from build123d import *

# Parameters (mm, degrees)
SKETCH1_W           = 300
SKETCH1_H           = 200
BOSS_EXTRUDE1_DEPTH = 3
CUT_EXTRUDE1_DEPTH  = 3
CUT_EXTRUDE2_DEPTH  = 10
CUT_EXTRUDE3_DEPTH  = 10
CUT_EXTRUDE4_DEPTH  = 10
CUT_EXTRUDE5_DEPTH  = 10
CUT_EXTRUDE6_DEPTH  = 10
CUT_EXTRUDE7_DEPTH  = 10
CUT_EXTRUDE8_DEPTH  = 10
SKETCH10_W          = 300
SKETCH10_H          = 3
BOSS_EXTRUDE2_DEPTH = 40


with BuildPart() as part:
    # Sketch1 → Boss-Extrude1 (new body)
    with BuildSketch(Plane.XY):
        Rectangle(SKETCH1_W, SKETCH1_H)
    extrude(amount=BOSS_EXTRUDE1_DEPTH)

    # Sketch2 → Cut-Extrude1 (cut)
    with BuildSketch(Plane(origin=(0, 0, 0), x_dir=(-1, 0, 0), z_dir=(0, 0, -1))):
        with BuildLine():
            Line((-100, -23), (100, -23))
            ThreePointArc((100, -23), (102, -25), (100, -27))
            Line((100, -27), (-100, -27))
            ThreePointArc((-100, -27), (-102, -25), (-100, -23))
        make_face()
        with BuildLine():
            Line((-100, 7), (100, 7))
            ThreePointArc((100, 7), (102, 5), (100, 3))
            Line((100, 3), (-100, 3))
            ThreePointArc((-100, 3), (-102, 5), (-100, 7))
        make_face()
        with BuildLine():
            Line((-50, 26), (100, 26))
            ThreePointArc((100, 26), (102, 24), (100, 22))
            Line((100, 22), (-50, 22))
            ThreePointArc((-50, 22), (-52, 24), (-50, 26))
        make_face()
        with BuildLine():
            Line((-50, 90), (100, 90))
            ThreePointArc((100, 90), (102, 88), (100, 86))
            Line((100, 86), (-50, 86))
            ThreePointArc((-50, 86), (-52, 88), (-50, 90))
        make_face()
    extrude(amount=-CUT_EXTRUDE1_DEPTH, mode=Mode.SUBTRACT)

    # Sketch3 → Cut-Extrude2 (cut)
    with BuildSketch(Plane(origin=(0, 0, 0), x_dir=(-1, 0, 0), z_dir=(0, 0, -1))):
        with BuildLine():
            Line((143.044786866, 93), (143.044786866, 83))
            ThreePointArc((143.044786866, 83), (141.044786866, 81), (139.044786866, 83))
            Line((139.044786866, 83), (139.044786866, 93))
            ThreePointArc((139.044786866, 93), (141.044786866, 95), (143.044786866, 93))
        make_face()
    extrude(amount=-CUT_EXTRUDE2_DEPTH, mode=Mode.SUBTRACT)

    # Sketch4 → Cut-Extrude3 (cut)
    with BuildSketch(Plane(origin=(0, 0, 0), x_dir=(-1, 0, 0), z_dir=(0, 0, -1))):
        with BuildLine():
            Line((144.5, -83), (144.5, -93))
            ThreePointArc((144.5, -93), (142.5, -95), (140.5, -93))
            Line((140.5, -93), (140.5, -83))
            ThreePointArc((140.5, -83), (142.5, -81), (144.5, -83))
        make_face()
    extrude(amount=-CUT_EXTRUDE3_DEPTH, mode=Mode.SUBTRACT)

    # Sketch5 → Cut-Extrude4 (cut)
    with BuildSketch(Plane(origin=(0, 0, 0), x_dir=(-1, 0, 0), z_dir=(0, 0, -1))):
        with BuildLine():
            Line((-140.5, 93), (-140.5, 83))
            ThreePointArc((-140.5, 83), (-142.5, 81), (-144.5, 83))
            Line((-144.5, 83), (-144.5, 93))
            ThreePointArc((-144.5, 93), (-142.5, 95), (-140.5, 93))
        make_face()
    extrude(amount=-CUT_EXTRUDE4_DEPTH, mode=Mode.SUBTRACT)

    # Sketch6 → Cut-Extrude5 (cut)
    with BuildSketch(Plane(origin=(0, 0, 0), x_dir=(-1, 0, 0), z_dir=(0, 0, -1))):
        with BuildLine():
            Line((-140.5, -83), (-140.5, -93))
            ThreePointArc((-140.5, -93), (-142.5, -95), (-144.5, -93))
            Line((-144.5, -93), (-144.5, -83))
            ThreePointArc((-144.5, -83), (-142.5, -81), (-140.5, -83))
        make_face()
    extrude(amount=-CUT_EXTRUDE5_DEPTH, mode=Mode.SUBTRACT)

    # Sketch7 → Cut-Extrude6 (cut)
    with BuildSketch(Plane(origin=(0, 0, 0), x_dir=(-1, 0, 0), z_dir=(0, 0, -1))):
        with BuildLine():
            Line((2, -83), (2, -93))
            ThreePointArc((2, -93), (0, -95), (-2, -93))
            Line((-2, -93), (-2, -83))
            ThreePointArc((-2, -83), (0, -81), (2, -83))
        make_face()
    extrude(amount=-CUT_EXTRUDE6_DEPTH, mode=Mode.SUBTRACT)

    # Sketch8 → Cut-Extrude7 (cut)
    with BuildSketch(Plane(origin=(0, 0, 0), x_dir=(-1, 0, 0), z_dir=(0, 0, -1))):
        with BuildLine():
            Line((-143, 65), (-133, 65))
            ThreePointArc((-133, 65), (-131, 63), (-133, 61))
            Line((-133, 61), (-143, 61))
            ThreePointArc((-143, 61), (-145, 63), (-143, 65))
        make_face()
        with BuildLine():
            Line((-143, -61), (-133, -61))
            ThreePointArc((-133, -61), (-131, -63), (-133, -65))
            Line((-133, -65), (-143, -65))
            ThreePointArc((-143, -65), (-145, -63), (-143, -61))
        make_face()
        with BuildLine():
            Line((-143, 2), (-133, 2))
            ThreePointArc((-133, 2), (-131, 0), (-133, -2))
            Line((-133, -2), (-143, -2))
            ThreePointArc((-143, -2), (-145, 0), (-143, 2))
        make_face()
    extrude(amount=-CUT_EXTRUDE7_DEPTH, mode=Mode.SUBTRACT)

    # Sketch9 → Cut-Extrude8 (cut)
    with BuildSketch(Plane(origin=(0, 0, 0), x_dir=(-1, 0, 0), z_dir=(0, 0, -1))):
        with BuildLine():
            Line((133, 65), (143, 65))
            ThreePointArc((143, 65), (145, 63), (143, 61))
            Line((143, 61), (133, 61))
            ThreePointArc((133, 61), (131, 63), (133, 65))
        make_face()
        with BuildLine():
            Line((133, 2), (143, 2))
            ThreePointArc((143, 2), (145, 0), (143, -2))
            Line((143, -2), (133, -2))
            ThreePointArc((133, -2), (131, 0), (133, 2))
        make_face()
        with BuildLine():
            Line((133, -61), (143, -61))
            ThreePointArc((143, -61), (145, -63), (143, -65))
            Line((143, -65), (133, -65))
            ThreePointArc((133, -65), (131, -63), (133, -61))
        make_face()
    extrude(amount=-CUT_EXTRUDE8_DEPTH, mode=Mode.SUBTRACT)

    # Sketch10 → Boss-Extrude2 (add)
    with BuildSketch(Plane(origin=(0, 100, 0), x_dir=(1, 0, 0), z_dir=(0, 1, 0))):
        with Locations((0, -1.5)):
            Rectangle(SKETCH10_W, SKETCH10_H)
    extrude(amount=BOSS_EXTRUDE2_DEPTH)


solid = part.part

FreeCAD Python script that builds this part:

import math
import FreeCAD as App
import Part
import Sketcher


def add_polygon(sketch, points):
    """Adds a closed chain of lines whose ends are joined by coincident constraints."""
    first, n = sketch.GeometryCount, len(points)
    for a, b in zip(points, points[1:] + points[:1]):
        sketch.addGeometry(Part.LineSegment(App.Vector(*a, 0), App.Vector(*b, 0)), False)
    for i in range(n):
        sketch.addConstraint(Sketcher.Constraint("Coincident", first + i, 2, first + (i + 1) % n, 1))

doc = App.newDocument("Part")
params = doc.addObject("Spreadsheet::Sheet", "Params")
for row, (alias, value) in enumerate([
    ("sketch1_width", "300 mm"),
    ("sketch1_height", "200 mm"),
    ("pad1_length", "3 mm"),
    ("sketch2_radius", "2 mm"),
    ("sketch2_width", "200 mm"),
    ("sketch2_width2", "150 mm"),
    ("pocket1_length", "3 mm"),
    ("sketch3_radius", "2 mm"),
    ("sketch3_height", "10 mm"),
    ("pocket2_length", "10 mm"),
    ("sketch4_radius", "2 mm"),
    ("sketch4_height", "10 mm"),
    ("pocket3_length", "10 mm"),
    ("sketch5_radius", "2 mm"),
    ("sketch5_height", "10 mm"),
    ("pocket4_length", "10 mm"),
    ("sketch6_radius", "2 mm"),
    ("sketch6_height", "10 mm"),
    ("pocket5_length", "10 mm"),
    ("sketch7_radius", "2 mm"),
    ("sketch7_height", "10 mm"),
    ("pocket6_length", "10 mm"),
    ("sketch8_radius", "2 mm"),
    ("sketch8_width", "10 mm"),
    ("pocket7_length", "10 mm"),
    ("sketch9_radius", "2 mm"),
    ("sketch9_width", "10 mm"),
    ("pocket8_length", "10 mm"),
    ("sketch10_width", "300 mm"),
    ("sketch10_height", "3 mm"),
    ("pad2_length", "40 mm"),
], start=1):
    params.set(f"A{row}", alias)
    params.set(f"B{row}", "=" + value)
    params.setAlias(f"B{row}", alias)

body = doc.addObject("PartDesign::Body", "Body")

sketch1 = body.newObject("Sketcher::SketchObject", "Sketch")
sketch1.AttachmentSupport = (doc.getObject("XY_Plane"), [""])
sketch1.MapMode = "FlatFace"
add_polygon(sketch1, [(-150, 100), (-150, -100), (150, -100), (150, 100)])
sketch1.addConstraint([
    Sketcher.Constraint("Vertical", 0),
    Sketcher.Constraint("Horizontal", 1),
    Sketcher.Constraint("Vertical", 2),
    Sketcher.Constraint("Horizontal", 3),
    Sketcher.Constraint("Symmetric", 0, 2, 2, 2, -1, 1),
    Sketcher.Constraint("DistanceX", 1, 1, 1, 2, 300.0),
    Sketcher.Constraint("DistanceY", 0, 2, 0, 1, 200.0),
])
sketch1.setExpression("Constraints[9]", "Params.sketch1_width")
sketch1.setExpression("Constraints[10]", "Params.sketch1_height")
pad1 = body.newObject("PartDesign::Pad", "Pad")
pad1.Profile = sketch1
pad1.setExpression("Length", "Params.pad1_length")

sketch2 = body.newObject("Sketcher::SketchObject", "Sketch001")
sketch2.AttachmentSupport = (doc.getObject("XY_Plane"), [""])
sketch2.MapMode = "FlatFace"
sketch2.addGeometry([
    Part.LineSegment(App.Vector(-100, -23, 0), App.Vector(100, -23, 0)),
    Part.ArcOfCircle(Part.Circle(App.Vector(100, -25, 0), App.Vector(0, 0, 1), 2), math.radians(-90), math.radians(90)),
    Part.LineSegment(App.Vector(100, -27, 0), App.Vector(-100, -27, 0)),
    Part.ArcOfCircle(Part.Circle(App.Vector(-100, -25, 0), App.Vector(0, 0, 1), 2), math.radians(90), math.radians(270)),
    Part.LineSegment(App.Vector(-100, 7, 0), App.Vector(100, 7, 0)),
    Part.ArcOfCircle(Part.Circle(App.Vector(100, 5, 0), App.Vector(0, 0, 1), 2), math.radians(-90), math.radians(90)),
    Part.LineSegment(App.Vector(100, 3, 0), App.Vector(-100, 3, 0)),
    Part.ArcOfCircle(Part.Circle(App.Vector(-100, 5, 0), App.Vector(0, 0, 1), 2), math.radians(90), math.radians(270)),
    Part.LineSegment(App.Vector(-100, 26, 0), App.Vector(50, 26, 0)),
    Part.ArcOfCircle(Part.Circle(App.Vector(50, 24, 0), App.Vector(0, 0, 1), 2), math.radians(-90), math.radians(90)),
    Part.LineSegment(App.Vector(50, 22, 0), App.Vector(-100, 22, 0)),
    Part.ArcOfCircle(Part.Circle(App.Vector(-100, 24, 0), App.Vector(0, 0, 1), 2), math.radians(90), math.radians(270)),
    Part.LineSegment(App.Vector(-100, 90, 0), App.Vector(50, 90, 0)),
    Part.ArcOfCircle(Part.Circle(App.Vector(50, 88, 0), App.Vector(0, 0, 1), 2), math.radians(-90), math.radians(90)),
    Part.LineSegment(App.Vector(50, 86, 0), App.Vector(-100, 86, 0)),
    Part.ArcOfCircle(Part.Circle(App.Vector(-100, 88, 0), App.Vector(0, 0, 1), 2), math.radians(90), math.radians(270)),
], False)
sketch2.addConstraint([
    Sketcher.Constraint("Tangent", 0, 2, 1, 2),
    Sketcher.Constraint("Tangent", 1, 1, 2, 1),
    Sketcher.Constraint("Tangent", 2, 2, 3, 2),
    Sketcher.Constraint("Tangent", 3, 1, 0, 1),
    Sketcher.Constraint("Tangent", 4, 2, 5, 2),
    Sketcher.Constraint("Tangent", 5, 1, 6, 1),
    Sketcher.Constraint("Tangent", 6, 2, 7, 2),
    Sketcher.Constraint("Tangent", 7, 1, 4, 1),
    Sketcher.Constraint("Tangent", 8, 2, 9, 2),
    Sketcher.Constraint("Tangent", 9, 1, 10, 1),
    Sketcher.Constraint("Tangent", 10, 2, 11, 2),
    Sketcher.Constraint("Tangent", 11, 1, 8, 1),
    Sketcher.Constraint("Tangent", 12, 2, 13, 2),
    Sketcher.Constraint("Tangent", 13, 1, 14, 1),
    Sketcher.Constraint("Tangent", 14, 2, 15, 2),
    Sketcher.Constraint("Tangent", 15, 1, 12, 1),
    Sketcher.Constraint("Horizontal", 0),
    Sketcher.Constraint("Horizontal", 2),
    Sketcher.Constraint("Horizontal", 4),
    Sketcher.Constraint("Horizontal", 6),
    Sketcher.Constraint("Horizontal", 8),
    Sketcher.Constraint("Horizontal", 10),
    Sketcher.Constraint("Horizontal", 12),
    Sketcher.Constraint("Horizontal", 14),
    Sketcher.Constraint("Equal", 3, 5),
    Sketcher.Constraint("Equal", 7, 9),
    Sketcher.Constraint("Equal", 11, 13),
    Sketcher.Constraint("Vertical", 1, 3, 5, 3),
    Sketcher.Constraint("Vertical", 3, 3, 7, 3),
    Sketcher.Constraint("Vertical", 7, 3, 11, 3),
    Sketcher.Constraint("Vertical", 9, 3, 13, 3),
    Sketcher.Constraint("Vertical", 11, 3, 15, 3),
    Sketcher.Constraint("Radius", 1, 2.0),
    Sketcher.Constraint("DistanceX", 0, 1, 0, 2, 200.0),
    Sketcher.Constraint("DistanceX", 8, 1, 8, 2, 150.0),
    Sketcher.Constraint("DistanceX", -1, 1, 1, 3, 100.0),
    Sketcher.Constraint("DistanceY", 1, 3, -1, 1, 25.0),
    Sketcher.Constraint("DistanceY", -1, 1, 5, 3, 5.0),
    Sketcher.Constraint("DistanceY", -1, 1, 9, 3, 24.0),
    Sketcher.Constraint("DistanceY", -1, 1, 13, 3, 88.0),
])
sketch2.setExpression("Constraints[32]", "Params.sketch2_radius")
sketch2.setExpression("Constraints[33]", "Params.sketch2_width")
sketch2.setExpression("Constraints[34]", "Params.sketch2_width2")
pocket1 = body.newObject("PartDesign::Pocket", "Pocket")
pocket1.Profile = sketch2
pocket1.setExpression("Length", "Params.pocket1_length")
pocket1.Reversed = True

sketch3 = body.newObject("Sketcher::SketchObject", "Sketch002")
sketch3.AttachmentSupport = (doc.getObject("XY_Plane"), [""])
sketch3.MapMode = "FlatFace"
sketch3.addGeometry([
    Part.LineSegment(App.Vector(-143, 83, 0), App.Vector(-143, 93, 0)),
    Part.ArcOfCircle(Part.Circle(App.Vector(-141, 93, 0), App.Vector(0, 0, 1), 2), math.radians(0), math.radians(180)),
    Part.LineSegment(App.Vector(-139, 93, 0), App.Vector(-139, 83, 0)),
    Part.ArcOfCircle(Part.Circle(App.Vector(-141, 83, 0), App.Vector(0, 0, 1), 2), math.radians(180), math.radians(360)),
], False)
sketch3.addConstraint([
    Sketcher.Constraint("Tangent", 0, 2, 1, 2),
    Sketcher.Constraint("Tangent", 1, 1, 2, 1),
    Sketcher.Constraint("Tangent", 2, 2, 3, 2),
    Sketcher.Constraint("Tangent", 3, 1, 0, 1),
    Sketcher.Constraint("Vertical", 0),
    Sketcher.Constraint("Vertical", 2),
    Sketcher.Constraint("Radius", 1, 2.0),
    Sketcher.Constraint("DistanceY", 0, 1, 0, 2, 10.0),
    Sketcher.Constraint("DistanceY", -1, 1, 1, 3, 93.0),
    Sketcher.Constraint("DistanceX", 1, 3, -1, 1, 141.044787),
])
sketch3.setExpression("Constraints[6]", "Params.sketch3_radius")
sketch3.setExpression("Constraints[7]", "Params.sketch3_height")
pocket2 = body.newObject("PartDesign::Pocket", "Pocket001")
pocket2.Profile = sketch3
pocket2.setExpression("Length", "Params.pocket2_length")
pocket2.Reversed = True

sketch4 = body.newObject("Sketcher::SketchObject", "Sketch003")
sketch4.AttachmentSupport = (doc.getObject("XY_Plane"), [""])
sketch4.MapMode = "FlatFace"
sketch4.addGeometry([
    Part.LineSegment(App.Vector(-144.5, -93, 0), App.Vector(-144.5, -83, 0)),
    Part.ArcOfCircle(Part.Circle(App.Vector(-142.5, -83, 0), App.Vector(0, 0, 1), 2), math.radians(0), math.radians(180)),
    Part.LineSegment(App.Vector(-140.5, -83, 0), App.Vector(-140.5, -93, 0)),
    Part.ArcOfCircle(Part.Circle(App.Vector(-142.5, -93, 0), App.Vector(0, 0, 1), 2), math.radians(180), math.radians(360)),
], False)
sketch4.addConstraint([
    Sketcher.Constraint("Tangent", 0, 2, 1, 2),
    Sketcher.Constraint("Tangent", 1, 1, 2, 1),
    Sketcher.Constraint("Tangent", 2, 2, 3, 2),
    Sketcher.Constraint("Tangent", 3, 1, 0, 1),
    Sketcher.Constraint("Vertical", 0),
    Sketcher.Constraint("Vertical", 2),
    Sketcher.Constraint("Radius", 1, 2.0),
    Sketcher.Constraint("DistanceY", 0, 1, 0, 2, 10.0),
    Sketcher.Constraint("DistanceY", 1, 3, -1, 1, 83.0),
    Sketcher.Constraint("DistanceX", 1, 3, -1, 1, 142.5),
])
sketch4.setExpression("Constraints[6]", "Params.sketch4_radius")
sketch4.setExpression("Constraints[7]", "Params.sketch4_height")
pocket3 = body.newObject("PartDesign::Pocket", "Pocket002")
pocket3.Profile = sketch4
pocket3.setExpression("Length", "Params.pocket3_length")
pocket3.Reversed = True

sketch5 = body.newObject("Sketcher::SketchObject", "Sketch004")
sketch5.AttachmentSupport = (doc.getObject("XY_Plane"), [""])
sketch5.MapMode = "FlatFace"
sketch5.addGeometry([
    Part.LineSegment(App.Vector(140.5, 83, 0), App.Vector(140.5, 93, 0)),
    Part.ArcOfCircle(Part.Circle(App.Vector(142.5, 93, 0), App.Vector(0, 0, 1), 2), math.radians(0), math.radians(180)),
    Part.LineSegment(App.Vector(144.5, 93, 0), App.Vector(144.5, 83, 0)),
    Part.ArcOfCircle(Part.Circle(App.Vector(142.5, 83, 0), App.Vector(0, 0, 1), 2), math.radians(180), math.radians(360)),
], False)
sketch5.addConstraint([
    Sketcher.Constraint("Tangent", 0, 2, 1, 2),
    Sketcher.Constraint("Tangent", 1, 1, 2, 1),
    Sketcher.Constraint("Tangent", 2, 2, 3, 2),
    Sketcher.Constraint("Tangent", 3, 1, 0, 1),
    Sketcher.Constraint("Vertical", 0),
    Sketcher.Constraint("Vertical", 2),
    Sketcher.Constraint("Radius", 1, 2.0),
    Sketcher.Constraint("DistanceY", 0, 1, 0, 2, 10.0),
    Sketcher.Constraint("DistanceY", -1, 1, 1, 3, 93.0),
    Sketcher.Constraint("DistanceX", -1, 1, 1, 3, 142.5),
])
sketch5.setExpression("Constraints[6]", "Params.sketch5_radius")
sketch5.setExpression("Constraints[7]", "Params.sketch5_height")
pocket4 = body.newObject("PartDesign::Pocket", "Pocket003")
pocket4.Profile = sketch5
pocket4.setExpression("Length", "Params.pocket4_length")
pocket4.Reversed = True

sketch6 = body.newObject("Sketcher::SketchObject", "Sketch005")
sketch6.AttachmentSupport = (doc.getObject("XY_Plane"), [""])
sketch6.MapMode = "FlatFace"
sketch6.addGeometry([
    Part.LineSegment(App.Vector(140.5, -93, 0), App.Vector(140.5, -83, 0)),
    Part.ArcOfCircle(Part.Circle(App.Vector(142.5, -83, 0), App.Vector(0, 0, 1), 2), math.radians(0), math.radians(180)),
    Part.LineSegment(App.Vector(144.5, -83, 0), App.Vector(144.5, -93, 0)),
    Part.ArcOfCircle(Part.Circle(App.Vector(142.5, -93, 0), App.Vector(0, 0, 1), 2), math.radians(180), math.radians(360)),
], False)
sketch6.addConstraint([
    Sketcher.Constraint("Tangent", 0, 2, 1, 2),
    Sketcher.Constraint("Tangent", 1, 1, 2, 1),
    Sketcher.Constraint("Tangent", 2, 2, 3, 2),
    Sketcher.Constraint("Tangent", 3, 1, 0, 1),
    Sketcher.Constraint("Vertical", 0),
    Sketcher.Constraint("Vertical", 2),
    Sketcher.Constraint("Radius", 1, 2.0),
    Sketcher.Constraint("DistanceY", 0, 1, 0, 2, 10.0),
    Sketcher.Constraint("DistanceY", 1, 3, -1, 1, 83.0),
    Sketcher.Constraint("DistanceX", -1, 1, 1, 3, 142.5),
])
sketch6.setExpression("Constraints[6]", "Params.sketch6_radius")
sketch6.setExpression("Constraints[7]", "Params.sketch6_height")
pocket5 = body.newObject("PartDesign::Pocket", "Pocket004")
pocket5.Profile = sketch6
pocket5.setExpression("Length", "Params.pocket5_length")
pocket5.Reversed = True

sketch7 = body.newObject("Sketcher::SketchObject", "Sketch006")
sketch7.AttachmentSupport = (doc.getObject("XY_Plane"), [""])
sketch7.MapMode = "FlatFace"
sketch7.addGeometry([
    Part.LineSegment(App.Vector(-2, -93, 0), App.Vector(-2, -83, 0)),
    Part.ArcOfCircle(Part.Circle(App.Vector(0, -83, 0), App.Vector(0, 0, 1), 2), math.radians(0), math.radians(180)),
    Part.LineSegment(App.Vector(2, -83, 0), App.Vector(2, -93, 0)),
    Part.ArcOfCircle(Part.Circle(App.Vector(0, -93, 0), App.Vector(0, 0, 1), 2), math.radians(180), math.radians(360)),
], False)
sketch7.addConstraint([
    Sketcher.Constraint("Tangent", 0, 2, 1, 2),
    Sketcher.Constraint("Tangent", 1, 1, 2, 1),
    Sketcher.Constraint("Tangent", 2, 2, 3, 2),
    Sketcher.Constraint("Tangent", 3, 1, 0, 1),
    Sketcher.Constraint("Vertical", 0),
    Sketcher.Constraint("Vertical", 2),
    Sketcher.Constraint("PointOnObject", 1, 3, -2),
    Sketcher.Constraint("Radius", 1, 2.0),
    Sketcher.Constraint("DistanceY", 0, 1, 0, 2, 10.0),
    Sketcher.Constraint("DistanceY", 1, 3, -1, 1, 83.0),
])
sketch7.setExpression("Constraints[7]", "Params.sketch7_radius")
sketch7.setExpression("Constraints[8]", "Params.sketch7_height")
pocket6 = body.newObject("PartDesign::Pocket", "Pocket005")
pocket6.Profile = sketch7
pocket6.setExpression("Length", "Params.pocket6_length")
pocket6.Reversed = True

sketch8 = body.newObject("Sketcher::SketchObject", "Sketch007")
sketch8.AttachmentSupport = (doc.getObject("XY_Plane"), [""])
sketch8.MapMode = "FlatFace"
sketch8.addGeometry([
    Part.LineSegment(App.Vector(133, 65, 0), App.Vector(143, 65, 0)),
    Part.ArcOfCircle(Part.Circle(App.Vector(143, 63, 0), App.Vector(0, 0, 1), 2), math.radians(-90), math.radians(90)),
    Part.LineSegment(App.Vector(143, 61, 0), App.Vector(133, 61, 0)),
    Part.ArcOfCircle(Part.Circle(App.Vector(133, 63, 0), App.Vector(0, 0, 1), 2), math.radians(90), math.radians(270)),
    Part.LineSegment(App.Vector(133, -61, 0), App.Vector(143, -61, 0)),
    Part.ArcOfCircle(Part.Circle(App.Vector(143, -63, 0), App.Vector(0, 0, 1), 2), math.radians(-90), math.radians(90)),
    Part.LineSegment(App.Vector(143, -65, 0), App.Vector(133, -65, 0)),
    Part.ArcOfCircle(Part.Circle(App.Vector(133, -63, 0), App.Vector(0, 0, 1), 2), math.radians(90), math.radians(270)),
    Part.LineSegment(App.Vector(133, 2, 0), App.Vector(143, 2, 0)),
    Part.ArcOfCircle(Part.Circle(App.Vector(143, 0, 0), App.Vector(0, 0, 1), 2), math.radians(-90), math.radians(90)),
    Part.LineSegment(App.Vector(143, -2, 0), App.Vector(133, -2, 0)),
    Part.ArcOfCircle(Part.Circle(App.Vector(133, 0, 0), App.Vector(0, 0, 1), 2), math.radians(90), math.radians(270)),
], False)
sketch8.addConstraint([
    Sketcher.Constraint("Tangent", 0, 2, 1, 2),
    Sketcher.Constraint("Tangent", 1, 1, 2, 1),
    Sketcher.Constraint("Tangent", 2, 2, 3, 2),
    Sketcher.Constraint("Tangent", 3, 1, 0, 1),
    Sketcher.Constraint("Tangent", 4, 2, 5, 2),
    Sketcher.Constraint("Tangent", 5, 1, 6, 1),
    Sketcher.Constraint("Tangent", 6, 2, 7, 2),
    Sketcher.Constraint("Tangent", 7, 1, 4, 1),
    Sketcher.Constraint("Tangent", 8, 2, 9, 2),
    Sketcher.Constraint("Tangent", 9, 1, 10, 1),
    Sketcher.Constraint("Tangent", 10, 2, 11, 2),
    Sketcher.Constraint("Tangent", 11, 1, 8, 1),
    Sketcher.Constraint("Horizontal", 0),
    Sketcher.Constraint("Horizontal", 2),
    Sketcher.Constraint("Horizontal", 4),
    Sketcher.Constraint("Horizontal", 6),
    Sketcher.Constraint("Horizontal", 8),
    Sketcher.Constraint("Horizontal", 10),
    Sketcher.Constraint("Equal", 3, 5),
    Sketcher.Constraint("Equal", 7, 9),
    Sketcher.Constraint("Symmetric", 1, 3, 5, 3, -1),
    Sketcher.Constraint("PointOnObject", 9, 3, -1),
    Sketcher.Constraint("Vertical", 3, 3, 7, 3),
    Sketcher.Constraint("Vertical", 5, 3, 9, 3),
    Sketcher.Constraint("Vertical", 7, 3, 11, 3),
    Sketcher.Constraint("Radius", 1, 2.0),
    Sketcher.Constraint("DistanceX", 0, 1, 0, 2, 10.0),
    Sketcher.Constraint("DistanceX", -1, 1, 1, 3, 143.0),
    Sketcher.Constraint("DistanceY", -1, 1, 1, 3, 63.0),
])
sketch8.setExpression("Constraints[25]", "Params.sketch8_radius")
sketch8.setExpression("Constraints[26]", "Params.sketch8_width")
pocket7 = body.newObject("PartDesign::Pocket", "Pocket006")
pocket7.Profile = sketch8
pocket7.setExpression("Length", "Params.pocket7_length")
pocket7.Reversed = True

sketch9 = body.newObject("Sketcher::SketchObject", "Sketch008")
sketch9.AttachmentSupport = (doc.getObject("XY_Plane"), [""])
sketch9.MapMode = "FlatFace"
sketch9.addGeometry([
    Part.LineSegment(App.Vector(-143, 65, 0), App.Vector(-133, 65, 0)),
    Part.ArcOfCircle(Part.Circle(App.Vector(-133, 63, 0), App.Vector(0, 0, 1), 2), math.radians(-90), math.radians(90)),
    Part.LineSegment(App.Vector(-133, 61, 0), App.Vector(-143, 61, 0)),
    Part.ArcOfCircle(Part.Circle(App.Vector(-143, 63, 0), App.Vector(0, 0, 1), 2), math.radians(90), math.radians(270)),
    Part.LineSegment(App.Vector(-143, 2, 0), App.Vector(-133, 2, 0)),
    Part.ArcOfCircle(Part.Circle(App.Vector(-133, 0, 0), App.Vector(0, 0, 1), 2), math.radians(-90), math.radians(90)),
    Part.LineSegment(App.Vector(-133, -2, 0), App.Vector(-143, -2, 0)),
    Part.ArcOfCircle(Part.Circle(App.Vector(-143, 0, 0), App.Vector(0, 0, 1), 2), math.radians(90), math.radians(270)),
    Part.LineSegment(App.Vector(-143, -61, 0), App.Vector(-133, -61, 0)),
    Part.ArcOfCircle(Part.Circle(App.Vector(-133, -63, 0), App.Vector(0, 0, 1), 2), math.radians(-90), math.radians(90)),
    Part.LineSegment(App.Vector(-133, -65, 0), App.Vector(-143, -65, 0)),
    Part.ArcOfCircle(Part.Circle(App.Vector(-143, -63, 0), App.Vector(0, 0, 1), 2), math.radians(90), math.radians(270)),
], False)
sketch9.addConstraint([
    Sketcher.Constraint("Tangent", 0, 2, 1, 2),
    Sketcher.Constraint("Tangent", 1, 1, 2, 1),
    Sketcher.Constraint("Tangent", 2, 2, 3, 2),
    Sketcher.Constraint("Tangent", 3, 1, 0, 1),
    Sketcher.Constraint("Tangent", 4, 2, 5, 2),
    Sketcher.Constraint("Tangent", 5, 1, 6, 1),
    Sketcher.Constraint("Tangent", 6, 2, 7, 2),
    Sketcher.Constraint("Tangent", 7, 1, 4, 1),
    Sketcher.Constraint("Tangent", 8, 2, 9, 2),
    Sketcher.Constraint("Tangent", 9, 1, 10, 1),
    Sketcher.Constraint("Tangent", 10, 2, 11, 2),
    Sketcher.Constraint("Tangent", 11, 1, 8, 1),
    Sketcher.Constraint("Horizontal", 0),
    Sketcher.Constraint("Horizontal", 2),
    Sketcher.Constraint("Horizontal", 4),
    Sketcher.Constraint("Horizontal", 6),
    Sketcher.Constraint("Horizontal", 8),
    Sketcher.Constraint("Horizontal", 10),
    Sketcher.Constraint("Equal", 3, 5),
    Sketcher.Constraint("Equal", 7, 9),
    Sketcher.Constraint("Symmetric", 1, 3, 9, 3, -1),
    Sketcher.Constraint("PointOnObject", 5, 3, -1),
    Sketcher.Constraint("Vertical", 1, 3, 5, 3),
    Sketcher.Constraint("Vertical", 3, 3, 7, 3),
    Sketcher.Constraint("Vertical", 7, 3, 11, 3),
    Sketcher.Constraint("Radius", 1, 2.0),
    Sketcher.Constraint("DistanceX", 0, 1, 0, 2, 10.0),
    Sketcher.Constraint("DistanceX", 1, 3, -1, 1, 133.0),
    Sketcher.Constraint("DistanceY", -1, 1, 1, 3, 63.0),
])
sketch9.setExpression("Constraints[25]", "Params.sketch9_radius")
sketch9.setExpression("Constraints[26]", "Params.sketch9_width")
pocket8 = body.newObject("PartDesign::Pocket", "Pocket007")
pocket8.Profile = sketch9
pocket8.setExpression("Length", "Params.pocket8_length")
pocket8.Reversed = True

sketch10 = body.newObject("Sketcher::SketchObject", "Sketch009")
sketch10.AttachmentSupport = (doc.getObject("XZ_Plane"), [""])
sketch10.MapMode = "FlatFace"
sketch10.AttachmentOffset = App.Placement(App.Vector(0, 0, -100), App.Rotation())
add_polygon(sketch10, [(-150, 0), (-150, 3), (150, 3), (150, 0)])
sketch10.addConstraint([
    Sketcher.Constraint("Vertical", 0),
    Sketcher.Constraint("Horizontal", 1),
    Sketcher.Constraint("Vertical", 2),
    Sketcher.Constraint("Horizontal", 3),
    Sketcher.Constraint("Symmetric", 2, 2, 3, 2, -1, 1),
    Sketcher.Constraint("DistanceX", 1, 1, 1, 2, 300.0),
    Sketcher.Constraint("DistanceY", 0, 1, 0, 2, 3.0),
])
sketch10.setExpression("Constraints[9]", "Params.sketch10_width")
sketch10.setExpression("Constraints[10]", "Params.sketch10_height")
pad2 = body.newObject("PartDesign::Pad", "Pad001")
pad2.Profile = sketch10
pad2.setExpression("Length", "Params.pad2_length")
pad2.Reversed = True

doc.recompute()
